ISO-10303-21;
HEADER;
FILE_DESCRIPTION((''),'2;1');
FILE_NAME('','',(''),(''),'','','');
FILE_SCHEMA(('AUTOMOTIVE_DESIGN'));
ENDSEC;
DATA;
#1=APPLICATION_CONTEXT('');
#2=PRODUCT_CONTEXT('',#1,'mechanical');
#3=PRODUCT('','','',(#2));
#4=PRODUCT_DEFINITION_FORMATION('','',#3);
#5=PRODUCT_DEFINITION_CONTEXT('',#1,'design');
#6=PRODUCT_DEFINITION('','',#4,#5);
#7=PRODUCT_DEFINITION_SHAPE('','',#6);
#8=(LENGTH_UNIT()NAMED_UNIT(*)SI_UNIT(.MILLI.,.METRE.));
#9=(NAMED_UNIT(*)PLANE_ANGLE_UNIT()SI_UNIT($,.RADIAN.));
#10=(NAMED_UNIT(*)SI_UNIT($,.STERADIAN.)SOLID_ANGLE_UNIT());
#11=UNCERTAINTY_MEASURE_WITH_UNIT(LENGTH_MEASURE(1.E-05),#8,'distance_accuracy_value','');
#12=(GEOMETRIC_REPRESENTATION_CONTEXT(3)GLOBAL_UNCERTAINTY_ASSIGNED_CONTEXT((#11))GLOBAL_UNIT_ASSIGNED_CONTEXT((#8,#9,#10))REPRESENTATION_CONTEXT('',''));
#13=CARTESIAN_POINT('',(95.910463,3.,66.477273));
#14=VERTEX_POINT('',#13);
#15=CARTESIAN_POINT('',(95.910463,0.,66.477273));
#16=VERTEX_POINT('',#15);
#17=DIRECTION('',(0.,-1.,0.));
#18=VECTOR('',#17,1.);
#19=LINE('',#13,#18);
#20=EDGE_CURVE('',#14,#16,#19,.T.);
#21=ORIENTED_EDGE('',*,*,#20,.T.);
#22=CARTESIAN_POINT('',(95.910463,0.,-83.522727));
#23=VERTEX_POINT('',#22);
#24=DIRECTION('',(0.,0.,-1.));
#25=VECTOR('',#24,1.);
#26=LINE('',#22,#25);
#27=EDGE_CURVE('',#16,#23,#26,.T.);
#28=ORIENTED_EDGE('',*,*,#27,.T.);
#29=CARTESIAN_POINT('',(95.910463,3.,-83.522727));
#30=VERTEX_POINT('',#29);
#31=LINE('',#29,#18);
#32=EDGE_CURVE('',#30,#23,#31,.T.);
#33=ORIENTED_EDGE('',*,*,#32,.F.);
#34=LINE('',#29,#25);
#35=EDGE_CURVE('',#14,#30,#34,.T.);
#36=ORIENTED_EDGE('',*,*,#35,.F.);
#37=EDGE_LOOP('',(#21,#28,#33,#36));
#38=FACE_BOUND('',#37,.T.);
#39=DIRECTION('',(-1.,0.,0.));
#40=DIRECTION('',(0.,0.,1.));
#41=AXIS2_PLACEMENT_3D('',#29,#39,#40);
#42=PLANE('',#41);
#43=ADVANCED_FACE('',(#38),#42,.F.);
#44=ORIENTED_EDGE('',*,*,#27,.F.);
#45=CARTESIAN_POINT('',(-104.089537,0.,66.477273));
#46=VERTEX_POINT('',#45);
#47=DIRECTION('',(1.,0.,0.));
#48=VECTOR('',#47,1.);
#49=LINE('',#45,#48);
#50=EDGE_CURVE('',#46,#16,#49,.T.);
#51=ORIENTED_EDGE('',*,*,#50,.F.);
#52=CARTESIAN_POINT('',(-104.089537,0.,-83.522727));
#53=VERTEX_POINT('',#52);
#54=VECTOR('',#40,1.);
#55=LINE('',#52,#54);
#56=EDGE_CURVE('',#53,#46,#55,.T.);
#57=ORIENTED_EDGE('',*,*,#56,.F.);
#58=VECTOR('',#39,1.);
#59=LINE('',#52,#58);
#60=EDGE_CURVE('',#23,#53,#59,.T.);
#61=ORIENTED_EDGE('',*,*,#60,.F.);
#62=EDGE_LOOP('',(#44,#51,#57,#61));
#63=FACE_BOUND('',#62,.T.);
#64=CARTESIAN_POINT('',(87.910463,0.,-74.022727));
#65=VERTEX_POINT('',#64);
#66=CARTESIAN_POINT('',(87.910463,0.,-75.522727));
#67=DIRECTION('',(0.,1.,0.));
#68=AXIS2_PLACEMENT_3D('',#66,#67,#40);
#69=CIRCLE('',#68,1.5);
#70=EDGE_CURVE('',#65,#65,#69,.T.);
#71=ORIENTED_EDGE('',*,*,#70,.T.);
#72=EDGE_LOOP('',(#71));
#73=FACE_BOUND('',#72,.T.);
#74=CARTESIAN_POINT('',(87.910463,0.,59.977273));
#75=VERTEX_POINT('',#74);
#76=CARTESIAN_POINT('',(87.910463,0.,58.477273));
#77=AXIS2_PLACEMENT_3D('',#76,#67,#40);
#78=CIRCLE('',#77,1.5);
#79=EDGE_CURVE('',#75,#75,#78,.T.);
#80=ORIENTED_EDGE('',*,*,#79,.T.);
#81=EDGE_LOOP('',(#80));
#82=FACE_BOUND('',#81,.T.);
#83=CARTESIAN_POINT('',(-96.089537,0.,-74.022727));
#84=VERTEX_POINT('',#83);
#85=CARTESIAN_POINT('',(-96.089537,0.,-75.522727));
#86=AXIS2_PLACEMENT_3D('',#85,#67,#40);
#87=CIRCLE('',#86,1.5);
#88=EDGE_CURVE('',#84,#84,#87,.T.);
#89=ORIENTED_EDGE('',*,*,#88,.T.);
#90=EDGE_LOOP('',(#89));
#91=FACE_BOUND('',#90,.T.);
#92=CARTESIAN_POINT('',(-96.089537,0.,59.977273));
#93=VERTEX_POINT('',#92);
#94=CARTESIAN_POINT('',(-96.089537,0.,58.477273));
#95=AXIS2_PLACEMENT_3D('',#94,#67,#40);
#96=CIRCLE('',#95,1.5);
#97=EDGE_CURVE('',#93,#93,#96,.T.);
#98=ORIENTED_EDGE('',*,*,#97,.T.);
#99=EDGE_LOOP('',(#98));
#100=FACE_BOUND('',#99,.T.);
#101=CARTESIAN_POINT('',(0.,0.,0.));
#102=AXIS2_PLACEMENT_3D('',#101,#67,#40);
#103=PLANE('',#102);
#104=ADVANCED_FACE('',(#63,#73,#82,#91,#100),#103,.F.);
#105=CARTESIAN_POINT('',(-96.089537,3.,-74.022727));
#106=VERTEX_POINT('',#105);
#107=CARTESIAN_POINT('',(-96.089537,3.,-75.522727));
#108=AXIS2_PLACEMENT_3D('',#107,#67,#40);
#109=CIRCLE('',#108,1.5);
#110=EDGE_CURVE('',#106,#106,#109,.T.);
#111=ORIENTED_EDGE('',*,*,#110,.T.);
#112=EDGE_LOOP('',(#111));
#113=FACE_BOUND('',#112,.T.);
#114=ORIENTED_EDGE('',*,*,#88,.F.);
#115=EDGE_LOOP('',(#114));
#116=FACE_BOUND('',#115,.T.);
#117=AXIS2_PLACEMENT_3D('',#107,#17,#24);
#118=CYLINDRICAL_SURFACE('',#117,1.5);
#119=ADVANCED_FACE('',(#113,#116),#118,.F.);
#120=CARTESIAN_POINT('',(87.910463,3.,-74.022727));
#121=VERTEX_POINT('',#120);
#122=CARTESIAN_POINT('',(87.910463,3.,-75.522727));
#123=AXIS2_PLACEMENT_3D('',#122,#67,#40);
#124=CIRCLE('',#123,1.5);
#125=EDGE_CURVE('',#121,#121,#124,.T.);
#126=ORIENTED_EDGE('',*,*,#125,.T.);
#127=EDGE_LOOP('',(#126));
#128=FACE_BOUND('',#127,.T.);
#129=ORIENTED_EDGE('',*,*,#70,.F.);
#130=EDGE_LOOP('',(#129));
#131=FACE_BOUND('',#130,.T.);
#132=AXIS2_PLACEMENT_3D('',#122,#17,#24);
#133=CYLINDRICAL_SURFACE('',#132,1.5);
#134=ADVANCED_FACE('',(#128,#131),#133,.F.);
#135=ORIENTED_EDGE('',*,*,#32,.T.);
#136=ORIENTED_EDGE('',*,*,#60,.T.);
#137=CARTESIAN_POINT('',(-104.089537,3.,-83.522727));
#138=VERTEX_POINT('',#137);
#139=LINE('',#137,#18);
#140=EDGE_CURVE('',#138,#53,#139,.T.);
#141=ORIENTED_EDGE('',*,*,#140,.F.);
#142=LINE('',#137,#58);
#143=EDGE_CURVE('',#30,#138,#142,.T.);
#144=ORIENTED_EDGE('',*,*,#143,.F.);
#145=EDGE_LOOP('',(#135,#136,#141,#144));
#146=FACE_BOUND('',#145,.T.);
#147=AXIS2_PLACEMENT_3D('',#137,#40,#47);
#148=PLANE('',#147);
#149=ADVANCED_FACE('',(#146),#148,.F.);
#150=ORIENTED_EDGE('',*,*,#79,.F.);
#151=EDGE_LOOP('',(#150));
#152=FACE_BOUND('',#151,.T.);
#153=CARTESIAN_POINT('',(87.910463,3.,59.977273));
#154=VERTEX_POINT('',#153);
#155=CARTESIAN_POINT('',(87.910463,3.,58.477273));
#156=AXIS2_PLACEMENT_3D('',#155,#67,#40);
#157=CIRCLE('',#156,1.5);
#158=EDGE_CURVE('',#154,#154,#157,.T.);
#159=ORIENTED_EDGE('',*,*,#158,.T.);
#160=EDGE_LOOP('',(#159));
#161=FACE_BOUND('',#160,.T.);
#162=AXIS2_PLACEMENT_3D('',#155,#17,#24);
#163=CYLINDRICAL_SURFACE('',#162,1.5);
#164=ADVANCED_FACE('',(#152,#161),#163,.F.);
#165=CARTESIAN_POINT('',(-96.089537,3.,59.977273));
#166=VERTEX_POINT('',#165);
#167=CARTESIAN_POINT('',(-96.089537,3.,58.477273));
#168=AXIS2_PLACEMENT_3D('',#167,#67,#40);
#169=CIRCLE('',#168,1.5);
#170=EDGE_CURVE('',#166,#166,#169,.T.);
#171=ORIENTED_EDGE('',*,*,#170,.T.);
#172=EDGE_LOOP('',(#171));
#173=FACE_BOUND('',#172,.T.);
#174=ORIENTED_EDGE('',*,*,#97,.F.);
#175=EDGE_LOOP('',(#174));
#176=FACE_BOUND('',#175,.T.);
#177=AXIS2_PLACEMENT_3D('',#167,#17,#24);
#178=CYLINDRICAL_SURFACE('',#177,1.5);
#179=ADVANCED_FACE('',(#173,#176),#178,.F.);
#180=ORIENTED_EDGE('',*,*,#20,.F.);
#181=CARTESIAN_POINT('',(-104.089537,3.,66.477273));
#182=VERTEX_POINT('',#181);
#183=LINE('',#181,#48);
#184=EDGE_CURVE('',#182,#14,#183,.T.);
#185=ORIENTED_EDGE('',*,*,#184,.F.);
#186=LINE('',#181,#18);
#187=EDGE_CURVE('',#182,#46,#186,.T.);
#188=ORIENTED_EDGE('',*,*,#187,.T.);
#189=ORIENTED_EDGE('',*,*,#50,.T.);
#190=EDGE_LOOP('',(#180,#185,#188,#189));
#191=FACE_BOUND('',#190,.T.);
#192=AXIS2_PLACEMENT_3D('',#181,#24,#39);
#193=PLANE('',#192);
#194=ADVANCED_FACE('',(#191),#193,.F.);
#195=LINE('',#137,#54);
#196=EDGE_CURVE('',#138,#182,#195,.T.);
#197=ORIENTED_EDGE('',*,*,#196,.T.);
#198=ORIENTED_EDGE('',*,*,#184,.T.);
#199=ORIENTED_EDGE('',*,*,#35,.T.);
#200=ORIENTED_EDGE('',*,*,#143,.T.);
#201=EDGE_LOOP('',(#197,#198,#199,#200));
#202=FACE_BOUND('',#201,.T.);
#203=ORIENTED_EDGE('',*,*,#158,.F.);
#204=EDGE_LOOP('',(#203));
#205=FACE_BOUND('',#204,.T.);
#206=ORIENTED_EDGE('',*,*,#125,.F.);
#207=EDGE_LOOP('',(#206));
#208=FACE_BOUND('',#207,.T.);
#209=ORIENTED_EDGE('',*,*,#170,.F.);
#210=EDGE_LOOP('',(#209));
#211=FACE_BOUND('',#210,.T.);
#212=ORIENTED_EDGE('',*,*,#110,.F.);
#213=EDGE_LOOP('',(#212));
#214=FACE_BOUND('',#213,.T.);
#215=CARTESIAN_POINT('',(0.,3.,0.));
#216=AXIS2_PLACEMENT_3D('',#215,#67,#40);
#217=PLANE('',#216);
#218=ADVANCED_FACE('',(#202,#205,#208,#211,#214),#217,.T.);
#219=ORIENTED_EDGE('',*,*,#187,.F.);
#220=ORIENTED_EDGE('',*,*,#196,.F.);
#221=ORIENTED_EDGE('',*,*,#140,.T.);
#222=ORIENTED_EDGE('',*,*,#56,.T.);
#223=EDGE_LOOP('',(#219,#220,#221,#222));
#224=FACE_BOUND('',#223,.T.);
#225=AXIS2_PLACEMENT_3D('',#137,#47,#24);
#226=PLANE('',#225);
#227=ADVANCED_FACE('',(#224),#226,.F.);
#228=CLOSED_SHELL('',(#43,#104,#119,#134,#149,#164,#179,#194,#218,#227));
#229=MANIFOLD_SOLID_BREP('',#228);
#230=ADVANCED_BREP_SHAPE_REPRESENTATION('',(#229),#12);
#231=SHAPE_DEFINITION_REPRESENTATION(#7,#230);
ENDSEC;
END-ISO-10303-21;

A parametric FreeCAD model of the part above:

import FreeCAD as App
import Part
import Sketcher
Q = App.Units.Quantity

doc = App.newDocument("Part")
body = doc.addObject("PartDesign::Body", "Body")

# Sketch on XZ plane
sketch1 = body.newObject("Sketcher::SketchObject", "Sketch")
sketch1.AttachmentSupport = (doc.getObject("XZ_Plane"), [""])
sketch1.MapMode = "FlatFace"
sketch1.addGeometry([
    Part.LineSegment(App.Vector(-104.1, -83.5, 0), App.Vector(-104.1, 66.5, 0)),  # 0
    Part.LineSegment(App.Vector(-104.1, 66.5, 0), App.Vector(95.9, 66.5, 0)),  # 1
    Part.LineSegment(App.Vector(95.9, 66.5, 0), App.Vector(95.9, -83.5, 0)),  # 2
    Part.LineSegment(App.Vector(95.9, -83.5, 0), App.Vector(-104.1, -83.5, 0)),  # 3
    Part.Circle(App.Vector(-96.1, 58.5, 0), App.Vector(0, 0, 1), 1.5),  # 4
    Part.Circle(App.Vector(87.9, 58.5, 0), App.Vector(0, 0, 1), 1.5),  # 5
    Part.Circle(App.Vector(-96.1, -75.5, 0), App.Vector(0, 0, 1), 1.5),  # 6
    Part.Circle(App.Vector(87.9, -75.5, 0), App.Vector(0, 0, 1), 1.5),  # 7
], False)
sketch1.addConstraint([
    Sketcher.Constraint("Coincident", 0, 2, 1, 1),
    Sketcher.Constraint("Coincident", 1, 2, 2, 1),
    Sketcher.Constraint("Coincident", 2, 2, 3, 1),
    Sketcher.Constraint("Coincident", 3, 2, 0, 1),
    Sketcher.Constraint("Vertical", 0),
    Sketcher.Constraint("Horizontal", 1),
    Sketcher.Constraint("Vertical", 2),
    Sketcher.Constraint("Horizontal", 3),
    Sketcher.Constraint("Equal", 4, 5),
    Sketcher.Constraint("Equal", 5, 6),
    Sketcher.Constraint("Equal", 6, 7),
    Sketcher.Constraint("Horizontal", 4, 3, 5, 3),
    Sketcher.Constraint("Horizontal", 6, 3, 7, 3),
    Sketcher.Constraint("Vertical", 4, 3, 6, 3),
    Sketcher.Constraint("Vertical", 5, 3, 7, 3),
    Sketcher.Constraint("Diameter", 4, Q("3 mm")),
    Sketcher.Constraint("DistanceX", 1, 1, 1, 2, Q("200 mm")),
    Sketcher.Constraint("DistanceY", 0, 1, 0, 2, Q("150 mm")),
    Sketcher.Constraint("DistanceX", 4, 3, 5, 3, Q("184 mm")),
    Sketcher.Constraint("DistanceY", 6, 3, 4, 3, Q("134 mm")),
    Sketcher.Constraint("DistanceX", 0, 2, 4, 3, Q("8 mm")),
    Sketcher.Constraint("DistanceY", 4, 3, 0, 2, Q("8 mm")),
    Sketcher.Constraint("DistanceX", 4, 3, -1, 1, Q("96.089537 mm")),
    Sketcher.Constraint("DistanceY", -1, 1, 4, 3, Q("58.477273 mm")),
])
pad1 = body.newObject("PartDesign::Pad", "Pad")
pad1.Profile = sketch1
pad1.Length = 3
pad1.Reversed = True

doc.recompute()
